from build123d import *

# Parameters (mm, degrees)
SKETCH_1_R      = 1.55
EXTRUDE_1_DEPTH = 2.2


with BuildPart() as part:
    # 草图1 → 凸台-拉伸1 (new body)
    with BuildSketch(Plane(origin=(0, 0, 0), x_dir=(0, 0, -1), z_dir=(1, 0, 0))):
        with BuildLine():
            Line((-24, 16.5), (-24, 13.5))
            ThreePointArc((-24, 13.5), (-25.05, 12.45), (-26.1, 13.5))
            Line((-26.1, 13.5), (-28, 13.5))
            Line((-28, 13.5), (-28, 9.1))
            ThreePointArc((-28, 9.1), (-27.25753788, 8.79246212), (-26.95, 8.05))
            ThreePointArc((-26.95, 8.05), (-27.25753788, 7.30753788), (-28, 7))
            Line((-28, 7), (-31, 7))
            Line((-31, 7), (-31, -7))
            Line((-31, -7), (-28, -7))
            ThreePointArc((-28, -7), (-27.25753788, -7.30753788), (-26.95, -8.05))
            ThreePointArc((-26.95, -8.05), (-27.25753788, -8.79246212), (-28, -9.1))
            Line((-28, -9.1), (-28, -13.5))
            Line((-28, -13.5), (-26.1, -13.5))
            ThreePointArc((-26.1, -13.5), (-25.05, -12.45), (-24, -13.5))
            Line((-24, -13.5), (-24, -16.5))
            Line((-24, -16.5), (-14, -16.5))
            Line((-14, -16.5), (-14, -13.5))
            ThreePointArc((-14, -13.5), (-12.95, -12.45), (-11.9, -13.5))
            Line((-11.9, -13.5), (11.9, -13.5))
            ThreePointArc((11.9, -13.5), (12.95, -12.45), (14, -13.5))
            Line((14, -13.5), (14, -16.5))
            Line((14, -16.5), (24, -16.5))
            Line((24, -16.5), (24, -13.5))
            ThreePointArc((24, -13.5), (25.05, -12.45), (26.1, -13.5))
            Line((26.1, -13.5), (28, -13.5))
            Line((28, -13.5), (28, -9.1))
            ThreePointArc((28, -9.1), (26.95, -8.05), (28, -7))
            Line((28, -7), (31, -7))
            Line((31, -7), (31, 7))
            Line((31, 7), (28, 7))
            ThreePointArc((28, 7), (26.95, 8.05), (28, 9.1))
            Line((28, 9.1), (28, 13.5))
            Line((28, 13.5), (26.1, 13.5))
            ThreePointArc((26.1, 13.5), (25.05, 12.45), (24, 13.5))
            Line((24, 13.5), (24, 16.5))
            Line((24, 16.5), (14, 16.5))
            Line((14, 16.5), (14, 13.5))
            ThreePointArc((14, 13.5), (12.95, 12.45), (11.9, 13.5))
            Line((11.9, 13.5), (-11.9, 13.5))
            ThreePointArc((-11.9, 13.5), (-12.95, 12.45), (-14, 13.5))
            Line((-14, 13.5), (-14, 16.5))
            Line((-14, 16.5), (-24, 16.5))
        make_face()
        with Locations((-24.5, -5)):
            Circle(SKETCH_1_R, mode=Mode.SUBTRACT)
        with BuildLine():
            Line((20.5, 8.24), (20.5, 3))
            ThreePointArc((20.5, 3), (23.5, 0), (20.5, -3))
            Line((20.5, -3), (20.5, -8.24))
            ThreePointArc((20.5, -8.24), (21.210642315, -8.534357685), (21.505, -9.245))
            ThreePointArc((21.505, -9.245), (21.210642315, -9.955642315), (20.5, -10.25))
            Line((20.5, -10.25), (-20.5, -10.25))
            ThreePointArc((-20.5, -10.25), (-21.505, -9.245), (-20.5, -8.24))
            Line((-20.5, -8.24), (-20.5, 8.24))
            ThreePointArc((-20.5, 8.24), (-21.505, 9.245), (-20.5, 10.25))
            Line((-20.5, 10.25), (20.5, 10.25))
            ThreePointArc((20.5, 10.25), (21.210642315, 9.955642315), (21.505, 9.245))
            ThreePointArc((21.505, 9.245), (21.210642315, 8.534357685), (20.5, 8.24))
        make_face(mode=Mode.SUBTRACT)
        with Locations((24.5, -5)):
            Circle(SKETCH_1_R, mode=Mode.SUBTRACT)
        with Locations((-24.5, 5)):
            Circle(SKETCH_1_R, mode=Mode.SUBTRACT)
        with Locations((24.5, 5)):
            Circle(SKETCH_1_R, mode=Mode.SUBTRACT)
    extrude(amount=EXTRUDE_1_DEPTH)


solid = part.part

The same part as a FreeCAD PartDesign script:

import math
import FreeCAD as App
import Part
import Sketcher

doc = App.newDocument("Part")
body = doc.addObject("PartDesign::Body", "Body")

sketch1 = body.newObject("Sketcher::SketchObject", "Sketch")
sketch1.AttachmentSupport = (doc.getObject("YZ_Plane"), [""])
sketch1.MapMode = "FlatFace"
sketch1.addGeometry([
    Part.LineSegment(App.Vector(16.5, 24, 0), App.Vector(13.5, 24, 0)),
    Part.ArcOfCircle(Part.Circle(App.Vector(13.5, 25.05, 0), App.Vector(0, 0, 1), 1.05), math.radians(90), math.radians(270)),
    Part.LineSegment(App.Vector(13.5, 26.1, 0), App.Vector(13.5, 28, 0)),
    Part.LineSegment(App.Vector(13.5, 28, 0), App.Vector(9.1, 28, 0)),
    Part.ArcOfCircle(Part.Circle(App.Vector(8.05, 28, 0), App.Vector(0, 0, 1), 1.05), math.radians(-90), math.radians(0)),
    Part.ArcOfCircle(Part.Circle(App.Vector(8.05, 28, 0), App.Vector(0, 0, 1), 1.05), math.radians(-180), math.radians(-90)),
    Part.LineSegment(App.Vector(7, 28, 0), App.Vector(7, 31, 0)),
    Part.LineSegment(App.Vector(7, 31, 0), App.Vector(-7, 31, 0)),
    Part.LineSegment(App.Vector(-7, 31, 0), App.Vector(-7, 28, 0)),
    Part.ArcOfCircle(Part.Circle(App.Vector(-8.05, 28, 0), App.Vector(0, 0, 1), 1.05), math.radians(-90), math.radians(0)),
    Part.ArcOfCircle(Part.Circle(App.Vector(-8.05, 28, 0), App.Vector(0, 0, 1), 1.05), math.radians(-180), math.radians(-90)),
    Part.LineSegment(App.Vector(-9.1, 28, 0), App.Vector(-13.5, 28, 0)),
    Part.LineSegment(App.Vector(-13.5, 28, 0), App.Vector(-13.5, 26.1, 0)),
    Part.ArcOfCircle(Part.Circle(App.Vector(-13.5, 25.05, 0), App.Vector(0, 0, 1), 1.05), math.radians(-90), math.radians(90)),
    Part.LineSegment(App.Vector(-13.5, 24, 0), App.Vector(-16.5, 24, 0)),
    Part.LineSegment(App.Vector(-16.5, 24, 0), App.Vector(-16.5, 14, 0)),
    Part.LineSegment(App.Vector(-16.5, 14, 0), App.Vector(-13.5, 14, 0)),
    Part.ArcOfCircle(Part.Circle(App.Vector(-13.5, 12.95, 0), App.Vector(0, 0, 1), 1.05), math.radians(-90), math.radians(90)),
    Part.LineSegment(App.Vector(-13.5, 11.9, 0), App.Vector(-13.5, -11.9, 0)),
    Part.ArcOfCircle(Part.Circle(App.Vector(-13.5, -12.95, 0), App.Vector(0, 0, 1), 1.05), math.radians(-90), math.radians(90)),
    Part.LineSegment(App.Vector(-13.5, -14, 0), App.Vector(-16.5, -14, 0)),
    Part.LineSegment(App.Vector(-16.5, -14, 0), App.Vector(-16.5, -24, 0)),
    Part.LineSegment(App.Vector(-16.5, -24, 0), App.Vector(-13.5, -24, 0)),
    Part.ArcOfCircle(Part.Circle(App.Vector(-13.5, -25.05, 0), App.Vector(0, 0, 1), 1.05), math.radians(-90), math.radians(90)),
    Part.LineSegment(App.Vector(-13.5, -26.1, 0), App.Vector(-13.5, -28, 0)),
    Part.LineSegment(App.Vector(-13.5, -28, 0), App.Vector(-9.1, -28, 0)),
    Part.ArcOfCircle(Part.Circle(App.Vector(-8.05, -28, 0), App.Vector(0, 0, 1), 1.05), math.radians(0), math.radians(180)),
    Part.LineSegment(App.Vector(-7, -28, 0), App.Vector(-7, -31, 0)),
    Part.LineSegment(App.Vector(-7, -31, 0), App.Vector(7, -31, 0)),
    Part.LineSegment(App.Vector(7, -31, 0), App.Vector(7, -28, 0)),
    Part.ArcOfCircle(Part.Circle(App.Vector(8.05, -28, 0), App.Vector(0, 0, 1), 1.05), math.radians(0), math.radians(180)),
    Part.LineSegment(App.Vector(9.1, -28, 0), App.Vector(13.5, -28, 0)),
    Part.LineSegment(App.Vector(13.5, -28, 0), App.Vector(13.5, -26.1, 0)),
    Part.ArcOfCircle(Part.Circle(App.Vector(13.5, -25.05, 0), App.Vector(0, 0, 1), 1.05), math.radians(90), math.radians(270)),
    Part.LineSegment(App.Vector(13.5, -24, 0), App.Vector(16.5, -24, 0)),
    Part.LineSegment(App.Vector(16.5, -24, 0), App.Vector(16.5, -14, 0)),
    Part.LineSegment(App.Vector(16.5, -14, 0), App.Vector(13.5, -14, 0)),
    Part.ArcOfCircle(Part.Circle(App.Vector(13.5, -12.95, 0), App.Vector(0, 0, 1), 1.05), math.radians(90), math.radians(270)),
    Part.LineSegment(App.Vector(13.5, -11.9, 0), App.Vector(13.5, 11.9, 0)),
    Part.ArcOfCircle(Part.Circle(App.Vector(13.5, 12.95, 0), App.Vector(0, 0, 1), 1.05), math.radians(90), math.radians(270)),
    Part.LineSegment(App.Vector(13.5, 14, 0), App.Vector(16.5, 14, 0)),
    Part.LineSegment(App.Vector(16.5, 14, 0), App.Vector(16.5, 24, 0)),
    Part.Circle(App.Vector(-5, 24.5, 0), App.Vector(0, 0, 1), 1.55),
    Part.Circle(App.Vector(-5, -24.5, 0), App.Vector(0, 0, 1), 1.55),
    Part.Circle(App.Vector(5, 24.5, 0), App.Vector(0, 0, 1), 1.55),
    Part.ArcOfCircle(Part.Circle(App.Vector(9.245, -20.5, 0), App.Vector(0, 0, 1), 1.005), math.radians(180), math.radians(270)),
    Part.LineSegment(App.Vector(8.24, -20.5, 0), App.Vector(3, -20.5, 0)),
    Part.ArcOfCircle(Part.Circle(App.Vector(0, -20.5, 0), App.Vector(0, 0, 1), 3), math.radians(180), math.radians(360)),
    Part.LineSegment(App.Vector(-3, -20.5, 0), App.Vector(-8.24, -20.5, 0)),
    Part.ArcOfCircle(Part.Circle(App.Vector(-9.245, -20.5, 0), App.Vector(0, 0, 1), 1.005), math.radians(-90), math.radians(0)),
    Part.ArcOfCircle(Part.Circle(App.Vector(-9.245, -20.5, 0), App.Vector(0, 0, 1), 1.005), math.radians(180), math.radians(270)),
    Part.LineSegment(App.Vector(-10.25, -20.5, 0), App.Vector(-10.25, 20.5, 0)),
    Part.ArcOfCircle(Part.Circle(App.Vector(-9.245, 20.5, 0), App.Vector(0, 0, 1), 1.005), math.radians(0), math.radians(180)),
    Part.LineSegment(App.Vector(-8.24, 20.5, 0), App.Vector(8.24, 20.5, 0)),
    Part.ArcOfCircle(Part.Circle(App.Vector(9.245, 20.5, 0), App.Vector(0, 0, 1), 1.005), math.radians(0), math.radians(180)),
    Part.LineSegment(App.Vector(10.25, 20.5, 0), App.Vector(10.25, -20.5, 0)),
    Part.ArcOfCircle(Part.Circle(App.Vector(9.245, -20.5, 0), App.Vector(0, 0, 1), 1.005), math.radians(-90), math.radians(0)),
    Part.Circle(App.Vector(5, -24.5, 0), App.Vector(0, 0, 1), 1.55),
], False)
sketch1.addConstraint([
    Sketcher.Constraint("Tangent", 0, 2, 1, 2),
    Sketcher.Constraint("Coincident", 1, 1, 2, 1),
    Sketcher.Constraint("Coincident", 2, 2, 3, 1),
    Sketcher.Constraint("Coincident", 3, 2, 4, 2),
    Sketcher.Constraint("Tangent", 4, 1, 5, 2),
    Sketcher.Constraint("Tangent", 5, 1, 6, 1),
    Sketcher.Constraint("Coincident", 6, 2, 7, 1),
    Sketcher.Constraint("Coincident", 7, 2, 8, 1),
    Sketcher.Constraint("Tangent", 8, 2, 9, 2),
    Sketcher.Constraint("Tangent", 9, 1, 10, 2),
    Sketcher.Constraint("Coincident", 10, 1, 11, 1),
    Sketcher.Constraint("Coincident", 11, 2, 12, 1),
    Sketcher.Constraint("Coincident", 12, 2, 13, 2),
    Sketcher.Constraint("Tangent", 13, 1, 14, 1),
    Sketcher.Constraint("Coincident", 14, 2, 15, 1),
    Sketcher.Constraint("Coincident", 15, 2, 16, 1),
    Sketcher.Constraint("Tangent", 16, 2, 17, 2),
    Sketcher.Constraint("Coincident", 17, 1, 18, 1),
    Sketcher.Constraint("Coincident", 18, 2, 19, 2),
    Sketcher.Constraint("Tangent", 19, 1, 20, 1),
    Sketcher.Constraint("Coincident", 20, 2, 21, 1),
    Sketcher.Constraint("Coincident", 21, 2, 22, 1),
    Sketcher.Constraint("Tangent", 22, 2, 23, 2),
    Sketcher.Constraint("Coincident", 23, 1, 24, 1),
    Sketcher.Constraint("Coincident", 24, 2, 25, 1),
    Sketcher.Constraint("Coincident", 25, 2, 26, 2),
    Sketcher.Constraint("Tangent", 26, 1, 27, 1),
    Sketcher.Constraint("Coincident", 27, 2, 28, 1),
    Sketcher.Constraint("Coincident", 28, 2, 29, 1),
    Sketcher.Constraint("Tangent", 29, 2, 30, 2),
    Sketcher.Constraint("Coincident", 30, 1, 31, 1),
    Sketcher.Constraint("Coincident", 31, 2, 32, 1),
    Sketcher.Constraint("Coincident", 32, 2, 33, 2),
    Sketcher.Constraint("Tangent", 33, 1, 34, 1),
    Sketcher.Constraint("Coincident", 34, 2, 35, 1),
    Sketcher.Constraint("Coincident", 35, 2, 36, 1),
    Sketcher.Constraint("Tangent", 36, 2, 37, 2),
    Sketcher.Constraint("Coincident", 37, 1, 38, 1),
    Sketcher.Constraint("Coincident", 38, 2, 39, 2),
    Sketcher.Constraint("Tangent", 39, 1, 40, 1),
    Sketcher.Constraint("Coincident", 40, 2, 41, 1),
    Sketcher.Constraint("Coincident", 41, 2, 0, 1),
    Sketcher.Constraint("Coincident", 45, 1, 46, 1),
    Sketcher.Constraint("Coincident", 46, 2, 47, 2),
    Sketcher.Constraint("Coincident", 47, 1, 48, 1),
    Sketcher.Constraint("Coincident", 48, 2, 49, 2),
    Sketcher.Constraint("Tangent", 49, 1, 50, 2),
    Sketcher.Constraint("Tangent", 50, 1, 51, 1),
    Sketcher.Constraint("Tangent", 51, 2, 52, 2),
    Sketcher.Constraint("Coincident", 52, 1, 53, 1),
    Sketcher.Constraint("Coincident", 53, 2, 54, 2),
    Sketcher.Constraint("Tangent", 54, 1, 55, 1),
    Sketcher.Constraint("Tangent", 55, 2, 56, 2),
    Sketcher.Constraint("Tangent", 56, 1, 45, 2),
    Sketcher.Constraint("Horizontal", 0),
    Sketcher.Constraint("Vertical", 2),
    Sketcher.Constraint("Horizontal", 3),
    Sketcher.Constraint("Vertical", 6),
    Sketcher.Constraint("Horizontal", 7),
    Sketcher.Constraint("Vertical", 8),
    Sketcher.Constraint("Horizontal", 11),
    Sketcher.Constraint("Vertical", 12),
    Sketcher.Constraint("Horizontal", 14),
    Sketcher.Constraint("Vertical", 15),
    Sketcher.Constraint("Horizontal", 16),
    Sketcher.Constraint("Vertical", 18),
    Sketcher.Constraint("Horizontal", 20),
    Sketcher.Constraint("Vertical", 21),
    Sketcher.Constraint("Horizontal", 22),
    Sketcher.Constraint("Vertical", 24),
    Sketcher.Constraint("Horizontal", 25),
    Sketcher.Constraint("Vertical", 27),
    Sketcher.Constraint("Horizontal", 28),
    Sketcher.Constraint("Vertical", 29),
    Sketcher.Constraint("Horizontal", 31),
    Sketcher.Constraint("Vertical", 32),
    Sketcher.Constraint("Horizontal", 34),
    Sketcher.Constraint("Vertical", 35),
    Sketcher.Constraint("Horizontal", 36),
    Sketcher.Constraint("Vertical", 38),
    Sketcher.Constraint("Horizontal", 40),
    Sketcher.Constraint("Vertical", 41),
    Sketcher.Constraint("Horizontal", 46),
    Sketcher.Constraint("Horizontal", 48),
    Sketcher.Constraint("Vertical", 51),
    Sketcher.Constraint("Horizontal", 53),
    Sketcher.Constraint("Vertical", 55),
    Sketcher.Constraint("Equal", 1, 4),
    Sketcher.Constraint("Equal", 4, 5),
    Sketcher.Constraint("Equal", 5, 9),
    Sketcher.Constraint("Equal", 9, 10),
    Sketcher.Constraint("Equal", 10, 13),
    Sketcher.Constraint("Equal", 13, 17),
    Sketcher.Constraint("Equal", 17, 19),
    Sketcher.Constraint("Equal", 19, 23),
    Sketcher.Constraint("Equal", 23, 26),
    Sketcher.Constraint("Equal", 26, 30),
    Sketcher.Constraint("Equal", 30, 33),
    Sketcher.Constraint("Equal", 33, 37),
    Sketcher.Constraint("Equal", 37, 39),
    Sketcher.Constraint("Equal", 42, 43),
    Sketcher.Constraint("Equal", 43, 44),
    Sketcher.Constraint("Equal", 45, 49),
    Sketcher.Constraint("Equal", 49, 50),
    Sketcher.Constraint("Equal", 50, 52),
    Sketcher.Constraint("Equal", 52, 54),
    Sketcher.Constraint("Equal", 54, 56),
    Sketcher.Constraint("Equal", 44, 57),
    Sketcher.Constraint("Symmetric", 1, 3, 23, 3, -1, 1),
    Sketcher.Constraint("Symmetric", 4, 3, 26, 3, -1, 1),
    Sketcher.Constraint("Symmetric", 9, 3, 30, 3, -1, 1),
    Sketcher.Constraint("Symmetric", 13, 3, 33, 3, -1, 1),
    Sketcher.Constraint("Symmetric", 17, 3, 37, 3, -1, 1),
    Sketcher.Constraint("Symmetric", 19, 3, 39, 3, -1, 1),
    Sketcher.Constraint("Symmetric", 43, 3, 44, 3, -1, 1),
    Sketcher.Constraint("Symmetric", 45, 3, 52, 3, -1, 1),
    Sketcher.Constraint("Symmetric", 42, 3, 57, 3, -1, 1),
    Sketcher.Constraint("Symmetric", 2, 2, 24, 2, -1, 1),
    Sketcher.Constraint("Symmetric", 11, 2, 31, 2, -1, 1),
    Sketcher.Constraint("Symmetric", 4, 3, 9, 3, -2),
    Sketcher.Constraint("Symmetric", 1, 3, 13, 3, -2),
    Sketcher.Constraint("Symmetric", 19, 3, 37, 3, -2),
    Sketcher.Constraint("Symmetric", 42, 3, 44, 3, -2),
    Sketcher.Constraint("Symmetric", 2, 2, 11, 2, -2),
    Sketcher.Constraint("Symmetric", 46, 2, 47, 1, -2),
    Sketcher.Constraint("Symmetric", 49, 1, 56, 1, -2),
    Sketcher.Constraint("Horizontal", 45, 3, 47, 3),
    Sketcher.Constraint("Horizontal", 52, 3, 54, 3),
    Sketcher.Constraint("Horizontal", 10, 3, 2, 2),
    Sketcher.Constraint("Horizontal", 56, 3, 45, 1),
    Sketcher.Constraint("Horizontal", 51, 2, 52, 1),
    Sketcher.Constraint("Vertical", 13, 3, 17, 3),
    Sketcher.Constraint("Vertical", 0, 2, 1, 1),
    Sketcher.Constraint("Vertical", 30, 3, 4, 1),
    Sketcher.Constraint("Vertical", 26, 3, 9, 1),
    Sketcher.Constraint("Vertical", 16, 2, 17, 1),
    Sketcher.Constraint("Vertical", 15, 2, 20, 2),
    Sketcher.Constraint("Vertical", 36, 2, 37, 1),
    Sketcher.Constraint("Vertical", 35, 2, 40, 2),
    Sketcher.Constraint("Vertical", 52, 3, 49, 1),
    Sketcher.Constraint("Equal", 0, 14),
    Sketcher.Constraint("Equal", 40, 6),
    Sketcher.Constraint("Equal", 8, 27),
    Sketcher.Constraint("Radius", 47, 3.0),
    Sketcher.Constraint("Diameter", 42, 3.1),
    Sketcher.Constraint("DistanceX", 0, 2, 0, 1, 3.0),
    Sketcher.Constraint("DistanceX", 7, 2, 7, 1, 14.0),
    Sketcher.Constraint("DistanceY", 15, 2, 15, 1, 10.0),
    Sketcher.Constraint("DistanceY", 51, 1, 51, 2, 41.0),
    Sketcher.Constraint("Radius", 1, 1.05),
    Sketcher.Constraint("DistanceX", 3, 2, 3, 1, 4.4),
    Sketcher.Constraint("DistanceY", 2, 1, 2, 2, 1.9),
    Sketcher.Constraint("DistanceY", 18, 2, 18, 1, 23.8),
    Sketcher.Constraint("DistanceX", 42, 3, -1, 1, 5.0),
    Sketcher.Constraint("Radius", 45, 1.005),
    Sketcher.Constraint("DistanceX", 46, 2, 46, 1, 5.24),
    Sketcher.Constraint("DistanceY", -1, 1, 42, 3, 24.5),
])
pad1 = body.newObject("PartDesign::Pad", "Pad")
pad1.Profile = sketch1
pad1.Length = 2.2

doc.recompute()
